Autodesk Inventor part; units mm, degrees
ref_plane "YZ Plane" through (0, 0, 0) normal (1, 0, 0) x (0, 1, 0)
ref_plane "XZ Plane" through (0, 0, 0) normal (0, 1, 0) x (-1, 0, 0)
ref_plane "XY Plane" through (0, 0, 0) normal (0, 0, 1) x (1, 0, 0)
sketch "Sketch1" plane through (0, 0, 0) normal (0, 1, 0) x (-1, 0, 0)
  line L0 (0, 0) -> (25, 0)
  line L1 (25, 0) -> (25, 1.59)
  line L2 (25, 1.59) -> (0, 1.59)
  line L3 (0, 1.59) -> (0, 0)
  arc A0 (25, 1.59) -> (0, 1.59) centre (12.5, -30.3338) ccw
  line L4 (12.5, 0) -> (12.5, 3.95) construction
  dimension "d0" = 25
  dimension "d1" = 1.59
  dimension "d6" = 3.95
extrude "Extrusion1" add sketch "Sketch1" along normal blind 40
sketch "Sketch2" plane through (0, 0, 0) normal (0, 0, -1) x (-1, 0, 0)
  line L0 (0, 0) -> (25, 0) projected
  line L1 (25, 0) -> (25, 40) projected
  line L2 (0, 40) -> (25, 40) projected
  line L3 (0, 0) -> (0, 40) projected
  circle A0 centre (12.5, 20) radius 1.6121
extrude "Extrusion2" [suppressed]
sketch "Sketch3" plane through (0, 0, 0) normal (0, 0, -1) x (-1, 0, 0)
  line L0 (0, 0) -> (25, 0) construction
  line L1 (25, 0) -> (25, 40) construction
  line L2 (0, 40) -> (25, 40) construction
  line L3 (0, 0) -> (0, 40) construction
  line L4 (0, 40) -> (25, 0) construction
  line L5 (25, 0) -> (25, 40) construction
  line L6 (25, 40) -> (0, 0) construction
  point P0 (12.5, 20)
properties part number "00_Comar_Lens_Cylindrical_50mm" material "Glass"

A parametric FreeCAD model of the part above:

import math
import FreeCAD as App
import Part
import Sketcher
from FreeCAD import Vector

doc = App.newDocument("Part")
body = doc.addObject("PartDesign::Body", "Body")

# Sketch on XZ plane
sketch1 = body.newObject("Sketcher::SketchObject", "Sketch")
sketch1.AttachmentSupport = (doc.getObject("XZ_Plane"), [""])
sketch1.MapMode = "FlatFace"
sketch1.addGeometry(Part.LineSegment(Vector(0, 1.59, 0), Vector(0, 0, 0)), False)
sketch1.addGeometry(Part.LineSegment(Vector(0, 0, 0), Vector(-25, 0, 0)), False)
sketch1.addGeometry(Part.LineSegment(Vector(-25, 0, 0), Vector(-25, 1.59, 0)), False)
sketch1.addGeometry(Part.ArcOfCircle(Part.Circle(Vector(-12.5, -30.3338, 0), Vector(0, 0, 1), 34.283801), math.radians(68.616805), math.radians(111.383195)), False)
sketch1.addConstraint(Sketcher.Constraint("Coincident", 0, 2, 1, 1))
sketch1.addConstraint(Sketcher.Constraint("Coincident", 1, 2, 2, 1))
sketch1.addConstraint(Sketcher.Constraint("Coincident", 2, 2, 3, 2))
sketch1.addConstraint(Sketcher.Constraint("Coincident", 3, 1, 0, 1))
sketch1.addConstraint(Sketcher.Constraint("Vertical", 0))
sketch1.addConstraint(Sketcher.Constraint("Horizontal", 1))
sketch1.addConstraint(Sketcher.Constraint("Vertical", 2))
sketch1.addConstraint(Sketcher.Constraint("Coincident", 0, 2, -1, 1))
sketch1.addConstraint(Sketcher.Constraint("Horizontal", 2, 2, 3, 1))
sketch1.addConstraint(Sketcher.Constraint("DistanceX", 1, 2, 1, 1, 25.0))
sketch1.addConstraint(Sketcher.Constraint("DistanceY", 0, 2, 0, 1, 1.59))
sketch1.addConstraint(Sketcher.Constraint("Radius", 3, 34.2838))
pad1 = body.newObject("PartDesign::Pad", "Pad")
pad1.Profile = sketch1
pad1.Length = 40
pad1.Reversed = True

doc.recompute()
